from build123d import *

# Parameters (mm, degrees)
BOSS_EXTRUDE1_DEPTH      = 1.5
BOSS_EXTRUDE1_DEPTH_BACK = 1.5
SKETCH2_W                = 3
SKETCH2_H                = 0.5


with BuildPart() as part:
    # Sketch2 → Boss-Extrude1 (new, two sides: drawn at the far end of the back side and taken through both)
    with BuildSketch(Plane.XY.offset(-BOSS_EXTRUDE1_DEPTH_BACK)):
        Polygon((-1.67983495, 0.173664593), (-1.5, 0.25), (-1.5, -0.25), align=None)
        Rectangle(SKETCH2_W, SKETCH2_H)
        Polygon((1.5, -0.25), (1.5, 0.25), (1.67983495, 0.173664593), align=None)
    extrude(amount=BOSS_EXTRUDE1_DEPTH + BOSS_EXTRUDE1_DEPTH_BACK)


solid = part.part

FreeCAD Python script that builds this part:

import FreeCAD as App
import Part
import Sketcher
from FreeCAD import Vector
Q = App.Units.Quantity


def add_polygon(sketch, points):
    """Adds a closed chain of lines whose ends are joined by coincident constraints."""
    first, n = sketch.GeometryCount, len(points)
    for a, b in zip(points, points[1:] + points[:1]):
        sketch.addGeometry(Part.LineSegment(App.Vector(*a, 0), App.Vector(*b, 0)), False)
    for i in range(n):
        sketch.addConstraint(Sketcher.Constraint("Coincident", first + i, 2, first + (i + 1) % n, 1))

doc = App.newDocument("Part")
body = doc.addObject("PartDesign::Body", "Body")

# Sketch on XY plane
sketch1 = body.newObject("Sketcher::SketchObject", "Sketch")
sketch1.AttachmentSupport = (doc.getObject("XY_Plane"), [""])
sketch1.MapMode = "FlatFace"
add_polygon(sketch1, [(-1.5, 0.25), (-1.68, 0.17), (-1.5, -0.25), (1.5, -0.25), (1.68, 0.17), (1.5, 0.25)])  # lines 0-5
sketch1.addConstraint(Sketcher.Constraint("Horizontal", 2))
sketch1.addConstraint(Sketcher.Constraint("Horizontal", 5))
sketch1.addConstraint(Sketcher.Constraint("Symmetric", 1, 2, 4, 2, -1, 1))
sketch1.addConstraint(Sketcher.Constraint("Symmetric", 0, 2, 3, 2, -2))
sketch1.addConstraint(Sketcher.Constraint("Perpendicular", 0, 1))
sketch1.addConstraint(Sketcher.Constraint("Perpendicular", 3, 4))
sketch1.addConstraint(Sketcher.Constraint("Vertical", 2, 2, 4, 2))
sketch1.addConstraint(Sketcher.Constraint("DistanceX", 2, 1, 2, 2, 3.0))
sketch1.addConstraint(Sketcher.Constraint("Angle", 0, Q("-157 deg")))
sketch1.addConstraint(Sketcher.Constraint("DistanceY", 2, 2, 4, 2, 0.5))
pad1 = body.newObject("PartDesign::Pad", "Pad")
pad1.Profile = sketch1
pad1.Type = "TwoLengths"
pad1.Length = 1.5
pad1.Length2 = 1.5

doc.recompute()
